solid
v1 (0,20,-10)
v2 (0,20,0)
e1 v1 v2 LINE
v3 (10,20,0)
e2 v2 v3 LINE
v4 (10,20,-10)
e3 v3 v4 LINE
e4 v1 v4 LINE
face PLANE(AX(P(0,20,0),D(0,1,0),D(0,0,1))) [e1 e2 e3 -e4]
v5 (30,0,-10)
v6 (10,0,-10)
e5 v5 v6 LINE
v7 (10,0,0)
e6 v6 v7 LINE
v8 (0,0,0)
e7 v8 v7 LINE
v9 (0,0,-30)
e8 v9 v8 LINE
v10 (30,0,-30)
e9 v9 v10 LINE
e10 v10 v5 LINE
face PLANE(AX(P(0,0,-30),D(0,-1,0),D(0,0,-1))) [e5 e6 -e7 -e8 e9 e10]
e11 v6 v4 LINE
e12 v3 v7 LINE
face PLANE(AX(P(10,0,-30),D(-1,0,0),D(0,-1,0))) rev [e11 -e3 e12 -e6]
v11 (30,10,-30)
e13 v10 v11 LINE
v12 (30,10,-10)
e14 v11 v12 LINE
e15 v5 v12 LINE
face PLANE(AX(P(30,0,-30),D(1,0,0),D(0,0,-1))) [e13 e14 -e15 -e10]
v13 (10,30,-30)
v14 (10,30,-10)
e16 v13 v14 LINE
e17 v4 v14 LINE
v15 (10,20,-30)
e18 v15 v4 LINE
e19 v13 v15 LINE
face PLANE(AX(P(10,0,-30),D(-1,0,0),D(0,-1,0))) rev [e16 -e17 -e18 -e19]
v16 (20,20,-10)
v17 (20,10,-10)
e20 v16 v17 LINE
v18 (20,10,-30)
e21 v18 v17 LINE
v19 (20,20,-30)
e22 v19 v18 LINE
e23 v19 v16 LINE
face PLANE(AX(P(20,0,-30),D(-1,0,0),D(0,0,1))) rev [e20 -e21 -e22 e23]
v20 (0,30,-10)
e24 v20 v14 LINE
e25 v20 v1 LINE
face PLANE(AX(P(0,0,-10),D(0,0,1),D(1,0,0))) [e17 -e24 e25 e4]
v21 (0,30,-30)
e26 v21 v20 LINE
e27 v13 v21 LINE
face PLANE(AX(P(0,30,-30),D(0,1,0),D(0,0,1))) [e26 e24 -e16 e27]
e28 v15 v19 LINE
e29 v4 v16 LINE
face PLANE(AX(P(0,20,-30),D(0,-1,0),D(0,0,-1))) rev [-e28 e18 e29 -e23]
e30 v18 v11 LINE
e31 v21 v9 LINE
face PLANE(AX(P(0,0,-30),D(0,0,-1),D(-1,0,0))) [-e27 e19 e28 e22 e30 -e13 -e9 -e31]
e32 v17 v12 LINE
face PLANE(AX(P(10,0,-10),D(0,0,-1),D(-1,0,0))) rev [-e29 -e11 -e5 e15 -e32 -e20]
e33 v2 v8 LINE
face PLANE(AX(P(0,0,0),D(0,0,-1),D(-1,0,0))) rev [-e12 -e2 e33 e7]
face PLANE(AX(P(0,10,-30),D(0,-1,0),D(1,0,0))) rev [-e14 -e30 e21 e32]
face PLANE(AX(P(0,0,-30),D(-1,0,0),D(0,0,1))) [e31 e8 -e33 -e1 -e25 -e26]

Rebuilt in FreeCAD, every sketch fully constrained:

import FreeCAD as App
import Part
import Sketcher
from FreeCAD import Vector


def add_polygon(sketch, points):
    """Adds a closed chain of lines whose ends are joined by coincident constraints."""
    first, n = sketch.GeometryCount, len(points)
    for a, b in zip(points, points[1:] + points[:1]):
        sketch.addGeometry(Part.LineSegment(App.Vector(*a, 0), App.Vector(*b, 0)), False)
    for i in range(n):
        sketch.addConstraint(Sketcher.Constraint("Coincident", first + i, 2, first + (i + 1) % n, 1))

doc = App.newDocument("Part")
body = doc.addObject("PartDesign::Body", "Body")

sketch1 = body.newObject("Sketcher::SketchObject", "Sketch")
sketch1.AttachmentSupport = (doc.getObject("XY_Plane"), [""])
sketch1.MapMode = "FlatFace"
add_polygon(sketch1, [(0, 30), (0, 0), (30, 0), (30, 30)])
sketch1.addConstraint(Sketcher.Constraint("Vertical", 0))
sketch1.addConstraint(Sketcher.Constraint("Horizontal", 1))
sketch1.addConstraint(Sketcher.Constraint("Vertical", 2))
sketch1.addConstraint(Sketcher.Constraint("Horizontal", 3))
sketch1.addConstraint(Sketcher.Constraint("Coincident", 0, 2, -1, 1))
sketch1.addConstraint(Sketcher.Constraint("Equal", 3, 0))
sketch1.addConstraint(Sketcher.Constraint("DistanceX", 1, 1, 1, 2, 30.0))
pad1 = body.newObject("PartDesign::Pad", "Pad")
pad1.Profile = sketch1
pad1.Length = 30
pad1.Reversed = True

sketch2 = body.newObject("Sketcher::SketchObject", "Sketch001")
sketch2.AttachmentSupport = (doc.getObject("XY_Plane"), [""])
sketch2.MapMode = "FlatFace"
add_polygon(sketch2, [(30, 30), (10, 30), (10, 20), (20, 20), (20, 10), (30, 10)])
sketch2.addConstraint(Sketcher.Constraint("Horizontal", 0))
sketch2.addConstraint(Sketcher.Constraint("Vertical", 1))
sketch2.addConstraint(Sketcher.Constraint("Horizontal", 2))
sketch2.addConstraint(Sketcher.Constraint("Vertical", 3))
sketch2.addConstraint(Sketcher.Constraint("Horizontal", 4))
sketch2.addConstraint(Sketcher.Constraint("Vertical", 5))
sketch2.addConstraint(Sketcher.Constraint("Equal", 2, 4))
sketch2.addConstraint(Sketcher.Constraint("Equal", 4, 1))
sketch2.addConstraint(Sketcher.Constraint("Equal", 1, 3))
sketch2.addConstraint(Sketcher.Constraint("DistanceX", 0, 2, 0, 1, 20.0))
sketch2.addConstraint(Sketcher.Constraint("DistanceX", -1, 1, 0, 2, 10.0))
sketch2.addConstraint(Sketcher.Constraint("DistanceY", -1, 1, 0, 2, 30.0))
pocket1 = body.newObject("PartDesign::Pocket", "Pocket")
pocket1.Profile = sketch2
pocket1.Type = "ThroughAll"

sketch3 = body.newObject("Sketcher::SketchObject", "Sketch002")
sketch3.AttachmentSupport = (doc.getObject("XZ_Plane"), [""])
sketch3.MapMode = "FlatFace"
sketch3.AttachmentOffset = App.Placement(Vector(0, 0, -30), App.Rotation())
add_polygon(sketch3, [(10, -10), (10, 0), (30, 0), (30, -10)])
sketch3.addConstraint(Sketcher.Constraint("Vertical", 0))
sketch3.addConstraint(Sketcher.Constraint("Horizontal", 1))
sketch3.addConstraint(Sketcher.Constraint("Vertical", 2))
sketch3.addConstraint(Sketcher.Constraint("Horizontal", 3))
sketch3.addConstraint(Sketcher.Constraint("PointOnObject", 0, 2, -1))
sketch3.addConstraint(Sketcher.Constraint("DistanceX", 1, 1, 1, 2, 20.0))
sketch3.addConstraint(Sketcher.Constraint("DistanceY", 0, 1, 0, 2, 10.0))
sketch3.addConstraint(Sketcher.Constraint("DistanceX", -1, 1, 0, 2, 10.0))
pocket2 = body.newObject("PartDesign::Pocket", "Pocket001")
pocket2.Profile = sketch3
pocket2.Type = "ThroughAll"
pocket2.Reversed = True

sketch4 = body.newObject("Sketcher::SketchObject", "Sketch003")
sketch4.AttachmentSupport = (doc.getObject("YZ_Plane"), [""])
sketch4.MapMode = "FlatFace"
sketch4.AttachmentOffset = App.Placement(Vector(0, 0, 30), App.Rotation())
add_polygon(sketch4, [(30, 0), (20, 0), (20, -10), (30, -10)])
sketch4.addConstraint(Sketcher.Constraint("Horizontal", 0))
sketch4.addConstraint(Sketcher.Constraint("Vertical", 1))
sketch4.addConstraint(Sketcher.Constraint("Horizontal", 2))
sketch4.addConstraint(Sketcher.Constraint("Vertical", 3))
sketch4.addConstraint(Sketcher.Constraint("PointOnObject", 0, 2, -1))
sketch4.addConstraint(Sketcher.Constraint("Equal", 2, 1))
sketch4.addConstraint(Sketcher.Constraint("DistanceX", 0, 2, 0, 1, 10.0))
sketch4.addConstraint(Sketcher.Constraint("DistanceX", -1, 1, 0, 2, 20.0))
pocket3 = body.newObject("PartDesign::Pocket", "Pocket002")
pocket3.Profile = sketch4
pocket3.Type = "ThroughAll"

doc.recompute()
